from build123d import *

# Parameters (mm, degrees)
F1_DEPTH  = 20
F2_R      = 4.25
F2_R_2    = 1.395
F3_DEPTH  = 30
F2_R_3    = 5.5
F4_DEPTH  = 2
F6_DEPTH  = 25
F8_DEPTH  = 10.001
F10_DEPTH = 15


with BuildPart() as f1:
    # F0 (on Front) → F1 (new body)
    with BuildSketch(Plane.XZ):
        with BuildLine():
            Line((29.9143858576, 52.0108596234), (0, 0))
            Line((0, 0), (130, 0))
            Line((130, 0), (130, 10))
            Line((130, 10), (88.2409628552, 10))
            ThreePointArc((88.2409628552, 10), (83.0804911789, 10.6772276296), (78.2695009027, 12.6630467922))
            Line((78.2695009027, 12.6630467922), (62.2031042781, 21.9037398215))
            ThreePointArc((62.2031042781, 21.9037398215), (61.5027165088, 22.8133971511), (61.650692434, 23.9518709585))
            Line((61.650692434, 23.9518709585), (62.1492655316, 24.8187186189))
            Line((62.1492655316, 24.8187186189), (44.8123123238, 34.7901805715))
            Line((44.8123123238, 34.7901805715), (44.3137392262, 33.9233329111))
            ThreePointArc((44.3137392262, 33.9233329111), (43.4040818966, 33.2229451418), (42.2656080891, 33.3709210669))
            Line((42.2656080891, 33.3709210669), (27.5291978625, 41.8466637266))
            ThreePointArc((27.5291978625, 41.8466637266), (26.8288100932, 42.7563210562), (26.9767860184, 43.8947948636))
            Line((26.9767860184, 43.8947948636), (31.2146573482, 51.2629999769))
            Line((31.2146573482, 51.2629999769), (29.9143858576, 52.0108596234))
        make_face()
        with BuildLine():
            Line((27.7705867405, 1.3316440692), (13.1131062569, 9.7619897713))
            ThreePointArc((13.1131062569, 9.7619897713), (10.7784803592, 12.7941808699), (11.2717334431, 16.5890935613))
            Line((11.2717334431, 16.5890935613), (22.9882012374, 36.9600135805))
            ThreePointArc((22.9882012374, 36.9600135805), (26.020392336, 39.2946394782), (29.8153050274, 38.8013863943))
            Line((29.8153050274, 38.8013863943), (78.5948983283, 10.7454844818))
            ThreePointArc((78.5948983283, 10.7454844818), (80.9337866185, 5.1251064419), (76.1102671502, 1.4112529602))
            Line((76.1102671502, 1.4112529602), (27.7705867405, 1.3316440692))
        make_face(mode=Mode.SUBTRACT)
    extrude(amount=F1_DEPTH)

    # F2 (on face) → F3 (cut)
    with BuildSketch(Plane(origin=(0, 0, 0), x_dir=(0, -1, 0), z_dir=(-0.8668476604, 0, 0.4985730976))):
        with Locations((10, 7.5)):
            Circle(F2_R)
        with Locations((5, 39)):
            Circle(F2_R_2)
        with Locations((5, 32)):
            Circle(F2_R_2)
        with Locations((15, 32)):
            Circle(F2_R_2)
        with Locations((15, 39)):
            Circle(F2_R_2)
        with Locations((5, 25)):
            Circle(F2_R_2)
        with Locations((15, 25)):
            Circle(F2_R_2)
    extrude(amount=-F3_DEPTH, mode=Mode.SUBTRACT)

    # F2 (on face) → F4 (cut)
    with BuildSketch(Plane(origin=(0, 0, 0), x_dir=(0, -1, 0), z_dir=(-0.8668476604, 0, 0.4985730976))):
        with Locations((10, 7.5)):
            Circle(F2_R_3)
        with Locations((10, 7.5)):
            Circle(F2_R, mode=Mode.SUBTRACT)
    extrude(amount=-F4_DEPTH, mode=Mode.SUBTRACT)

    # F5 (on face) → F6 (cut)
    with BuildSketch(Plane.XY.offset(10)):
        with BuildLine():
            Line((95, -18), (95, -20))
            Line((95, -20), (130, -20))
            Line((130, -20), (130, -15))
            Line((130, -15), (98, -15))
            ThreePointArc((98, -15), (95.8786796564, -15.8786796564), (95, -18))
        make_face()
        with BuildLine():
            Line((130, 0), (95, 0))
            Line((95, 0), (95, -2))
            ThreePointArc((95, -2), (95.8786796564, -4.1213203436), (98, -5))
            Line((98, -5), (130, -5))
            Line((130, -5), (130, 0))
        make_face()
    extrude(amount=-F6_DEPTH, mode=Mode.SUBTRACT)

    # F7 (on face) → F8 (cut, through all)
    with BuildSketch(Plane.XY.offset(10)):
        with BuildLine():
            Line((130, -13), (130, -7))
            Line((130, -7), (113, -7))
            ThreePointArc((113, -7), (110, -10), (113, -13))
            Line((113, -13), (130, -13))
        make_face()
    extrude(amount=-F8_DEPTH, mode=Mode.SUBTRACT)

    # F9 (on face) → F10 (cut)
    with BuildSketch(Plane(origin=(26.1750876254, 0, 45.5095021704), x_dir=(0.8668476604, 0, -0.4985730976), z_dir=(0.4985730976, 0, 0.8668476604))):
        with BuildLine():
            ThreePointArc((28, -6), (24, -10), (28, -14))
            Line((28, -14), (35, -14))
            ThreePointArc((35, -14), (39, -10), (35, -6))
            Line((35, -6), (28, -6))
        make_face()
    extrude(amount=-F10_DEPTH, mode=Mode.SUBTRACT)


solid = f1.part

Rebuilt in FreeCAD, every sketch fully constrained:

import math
import FreeCAD as App
import Part
import Sketcher

doc = App.newDocument("Part")
body = doc.addObject("PartDesign::Body", "Body")

sketch1 = body.newObject("Sketcher::SketchObject", "Sketch")
sketch1.AttachmentSupport = (doc.getObject("XZ_Plane"), [""])
sketch1.MapMode = "FlatFace"
sketch1.addGeometry([
    Part.LineSegment(App.Vector(29.914386, 52.01086, 0), App.Vector(0, 0, 0)),
    Part.LineSegment(App.Vector(0, 0, 0), App.Vector(130, 0, 0)),
    Part.LineSegment(App.Vector(130, 0, 0), App.Vector(130, 10, 0)),
    Part.LineSegment(App.Vector(130, 10, 0), App.Vector(88.240963, 10, 0)),
    Part.ArcOfCircle(Part.Circle(App.Vector(88.240963, 30, 0), App.Vector(0, 0, 1), 20), math.radians(-119.905642), math.radians(-90)),
    Part.LineSegment(App.Vector(78.269501, 12.663047, 0), App.Vector(62.203104, 21.90374, 0)),
    Part.ArcOfCircle(Part.Circle(App.Vector(62.950964, 23.204011, 0), App.Vector(0, 0, 1), 1.5), math.radians(150.094358), math.radians(240.094358)),
    Part.LineSegment(App.Vector(61.650692, 23.951871, 0), App.Vector(62.149266, 24.818719, 0)),
    Part.LineSegment(App.Vector(62.149266, 24.818719, 0), App.Vector(44.812312, 34.790181, 0)),
    Part.LineSegment(App.Vector(44.812312, 34.790181, 0), App.Vector(44.313739, 33.923333, 0)),
    Part.ArcOfCircle(Part.Circle(App.Vector(43.013468, 34.671193, 0), App.Vector(0, 0, 1), 1.5), math.radians(-119.905642), math.radians(-29.905642)),
    Part.LineSegment(App.Vector(42.265608, 33.370921, 0), App.Vector(27.529198, 41.846664, 0)),
    Part.ArcOfCircle(Part.Circle(App.Vector(28.277058, 43.146935, 0), App.Vector(0, 0, 1), 1.5), math.radians(150.094358), math.radians(240.094358)),
    Part.LineSegment(App.Vector(26.976786, 43.894795, 0), App.Vector(31.214657, 51.263, 0)),
    Part.LineSegment(App.Vector(31.214657, 51.263, 0), App.Vector(29.914386, 52.01086, 0)),
    Part.LineSegment(App.Vector(76.110267, 1.411253, 0), App.Vector(27.770587, 1.331644, 0)),
    Part.LineSegment(App.Vector(27.770587, 1.331644, 0), App.Vector(13.113106, 9.76199, 0)),
    Part.ArcOfCircle(Part.Circle(App.Vector(15.605972, 14.096228, 0), App.Vector(0, 0, 1), 5), math.radians(150.094358), math.radians(240.094358)),
    Part.LineSegment(App.Vector(11.271733, 16.589094, 0), App.Vector(22.988201, 36.960014, 0)),
    Part.ArcOfCircle(Part.Circle(App.Vector(27.32244, 34.467148, 0), App.Vector(0, 0, 1), 5), math.radians(60.094358), math.radians(150.094358)),
    Part.LineSegment(App.Vector(29.815305, 38.801386, 0), App.Vector(78.594898, 10.745484, 0)),
    Part.ArcOfCircle(Part.Circle(App.Vector(76.102033, 6.411246, 0), App.Vector(0, 0, 1), 5), math.radians(-89.905642), math.radians(60.094358)),
], False)
sketch1.addConstraint([
    Sketcher.Constraint("Coincident", 0, 2, 1, 1),
    Sketcher.Constraint("Coincident", 1, 2, 2, 1),
    Sketcher.Constraint("Coincident", 2, 2, 3, 1),
    Sketcher.Constraint("Tangent", 3, 2, 4, 2),
    Sketcher.Constraint("Tangent", 4, 1, 5, 1),
    Sketcher.Constraint("Tangent", 5, 2, 6, 2),
    Sketcher.Constraint("Tangent", 6, 1, 7, 1),
    Sketcher.Constraint("Coincident", 7, 2, 8, 1),
    Sketcher.Constraint("Coincident", 8, 2, 9, 1),
    Sketcher.Constraint("Tangent", 9, 2, 10, 2),
    Sketcher.Constraint("Tangent", 10, 1, 11, 1),
    Sketcher.Constraint("Tangent", 11, 2, 12, 2),
    Sketcher.Constraint("Tangent", 12, 1, 13, 1),
    Sketcher.Constraint("Coincident", 13, 2, 14, 1),
    Sketcher.Constraint("Coincident", 14, 2, 0, 1),
    Sketcher.Constraint("Coincident", 15, 2, 16, 1),
    Sketcher.Constraint("Tangent", 16, 2, 17, 2),
    Sketcher.Constraint("Tangent", 17, 1, 18, 1),
    Sketcher.Constraint("Tangent", 18, 2, 19, 2),
    Sketcher.Constraint("Tangent", 19, 1, 20, 1),
    Sketcher.Constraint("Tangent", 20, 2, 21, 2),
    Sketcher.Constraint("Tangent", 21, 1, 15, 1),
    Sketcher.Constraint("Horizontal", 1),
    Sketcher.Constraint("Vertical", 2),
    Sketcher.Constraint("Horizontal", 3),
    Sketcher.Constraint("Coincident", 0, 2, -1, 1),
    Sketcher.Constraint("Equal", 6, 10),
    Sketcher.Constraint("Equal", 10, 12),
    Sketcher.Constraint("Equal", 17, 19),
    Sketcher.Constraint("Equal", 19, 21),
    Sketcher.Constraint("Perpendicular", 0, 5),
    Sketcher.Constraint("Perpendicular", 5, 7),
    Sketcher.Constraint("Perpendicular", 7, 8),
    Sketcher.Constraint("Perpendicular", 8, 9),
    Sketcher.Constraint("Perpendicular", 9, 11),
    Sketcher.Constraint("Perpendicular", 11, 13),
    Sketcher.Constraint("Perpendicular", 13, 14),
    Sketcher.Constraint("Parallel", 14, 16),
    Sketcher.Constraint("Perpendicular", 16, 18),
    Sketcher.Constraint("Perpendicular", 18, 20),
    Sketcher.Constraint("Equal", 7, 9),
    Sketcher.Constraint("Radius", 4, 20.0),
    Sketcher.Constraint("Radius", 17, 5.0),
    Sketcher.Constraint("Radius", 6, 1.5),
    Sketcher.Constraint("DistanceX", 1, 1, 1, 2, 130.0),
    Sketcher.Constraint("DistanceY", 2, 1, 2, 2, 10.0),
    Sketcher.Constraint("Distance", 0, 60.0),
    Sketcher.Constraint("Distance", 7, 1.0),
    Sketcher.Constraint("Distance", 8, 20.0),
    Sketcher.Constraint("Distance", 11, 17.0),
    Sketcher.Constraint("Distance", 13, 8.5),
    Sketcher.Constraint("Distance", 14, 1.5),
    Sketcher.Constraint("Distance", 18, 23.5),
    Sketcher.Constraint("DistanceX", 6, 3, 4, 3, 25.289999),
    Sketcher.Constraint("DistanceX", -1, 1, 18, 2, 22.988201),
    Sketcher.Constraint("DistanceX", -1, 1, 20, 2, 78.594898),
    Sketcher.Constraint("DistanceY", 21, 3, 4, 1, 6.251801),
    Sketcher.Constraint("DistanceX", 15, 2, 10, 1, 14.495021),
])
pad1 = body.newObject("PartDesign::Pad", "Pad")
pad1.Profile = sketch1
pad1.Length = 20

sketch2 = body.newObject("Sketcher::SketchObject", "Sketch001")
sketch2.Placement = App.Placement(App.Vector(0, 0, 0), App.Rotation(App.Vector(0, -1, 0), App.Vector(0.498573098, 0, 0.86684766), App.Vector(-0.86684766, 0, 0.498573098), "ZXY"))
sketch2.addGeometry([
    Part.Circle(App.Vector(10, 7.5, 0), App.Vector(0, 0, 1), 4.25),
    Part.Circle(App.Vector(5, 39, 0), App.Vector(0, 0, 1), 1.395),
    Part.Circle(App.Vector(5, 32, 0), App.Vector(0, 0, 1), 1.395),
    Part.Circle(App.Vector(15, 32, 0), App.Vector(0, 0, 1), 1.395),
    Part.Circle(App.Vector(15, 39, 0), App.Vector(0, 0, 1), 1.395),
    Part.Circle(App.Vector(5, 25, 0), App.Vector(0, 0, 1), 1.395),
    Part.Circle(App.Vector(15, 25, 0), App.Vector(0, 0, 1), 1.395),
], False)
sketch2.addConstraint([
    Sketcher.Constraint("Equal", 1, 2),
    Sketcher.Constraint("Equal", 2, 3),
    Sketcher.Constraint("Equal", 3, 4),
    Sketcher.Constraint("Equal", 4, 5),
    Sketcher.Constraint("Equal", 5, 6),
    Sketcher.Constraint("Horizontal", 2, 3, 3, 3),
    Sketcher.Constraint("Horizontal", 1, 3, 4, 3),
    Sketcher.Constraint("Horizontal", 5, 3, 6, 3),
    Sketcher.Constraint("Vertical", 1, 3, 2, 3),
    Sketcher.Constraint("Vertical", 3, 3, 4, 3),
    Sketcher.Constraint("Vertical", 2, 3, 5, 3),
    Sketcher.Constraint("Vertical", 4, 3, 6, 3),
    Sketcher.Constraint("Diameter", 0, 8.5),
    Sketcher.Constraint("Diameter", 1, 2.79),
    Sketcher.Constraint("DistanceX", -1, 1, 0, 3, 10.0),
    Sketcher.Constraint("DistanceX", -1, 1, 1, 3, 5.0),
    Sketcher.Constraint("DistanceY", -1, 1, 1, 3, 39.0),
    Sketcher.Constraint("DistanceY", -1, 1, 2, 3, 32.0),
    Sketcher.Constraint("DistanceX", -1, 1, 3, 3, 15.0),
    Sketcher.Constraint("DistanceY", -1, 1, 5, 3, 25.0),
    Sketcher.Constraint("DistanceY", -1, 1, 0, 3, 7.5),
])
pocket1 = body.newObject("PartDesign::Pocket", "Pocket")
pocket1.Profile = sketch2
pocket1.Length = 30

sketch3 = body.newObject("Sketcher::SketchObject", "Sketch002")
sketch3.Placement = App.Placement(App.Vector(0, 0, 0), App.Rotation(App.Vector(0, -1, 0), App.Vector(0.498573098, 0, 0.86684766), App.Vector(-0.86684766, 0, 0.498573098), "ZXY"))
sketch3.addGeometry([
    Part.Circle(App.Vector(10, 7.5, 0), App.Vector(0, 0, 1), 5.5),
    Part.Circle(App.Vector(10, 7.5, 0), App.Vector(0, 0, 1), 4.25),
], False)
sketch3.addConstraint([
    Sketcher.Constraint("Coincident", 1, 3, 0, 3),
    Sketcher.Constraint("Diameter", 0, 11.0),
    Sketcher.Constraint("Diameter", 1, 8.5),
    Sketcher.Constraint("DistanceX", -1, 1, 0, 3, 10.0),
    Sketcher.Constraint("DistanceY", -1, 1, 0, 3, 7.5),
])
pocket2 = body.newObject("PartDesign::Pocket", "Pocket001")
pocket2.Profile = sketch3
pocket2.Length = 2

sketch4 = body.newObject("Sketcher::SketchObject", "Sketch003")
sketch4.AttachmentSupport = (doc.getObject("XY_Plane"), [""])
sketch4.MapMode = "FlatFace"
sketch4.AttachmentOffset = App.Placement(App.Vector(0, 0, 10), App.Rotation())
sketch4.addGeometry([
    Part.LineSegment(App.Vector(95, -18, 0), App.Vector(95, -20, 0)),
    Part.LineSegment(App.Vector(95, -20, 0), App.Vector(130, -20, 0)),
    Part.LineSegment(App.Vector(130, -20, 0), App.Vector(130, -15, 0)),
    Part.LineSegment(App.Vector(130, -15, 0), App.Vector(98, -15, 0)),
    Part.ArcOfCircle(Part.Circle(App.Vector(98, -18, 0), App.Vector(0, 0, 1), 3), math.radians(90), math.radians(180)),
    Part.LineSegment(App.Vector(130, 0, 0), App.Vector(95, 0, 0)),
    Part.LineSegment(App.Vector(95, 0, 0), App.Vector(95, -2, 0)),
    Part.ArcOfCircle(Part.Circle(App.Vector(98, -2, 0), App.Vector(0, 0, 1), 3), math.radians(180), math.radians(270)),
    Part.LineSegment(App.Vector(98, -5, 0), App.Vector(130, -5, 0)),
    Part.LineSegment(App.Vector(130, -5, 0), App.Vector(130, 0, 0)),
], False)
sketch4.addConstraint([
    Sketcher.Constraint("Coincident", 0, 2, 1, 1),
    Sketcher.Constraint("Coincident", 1, 2, 2, 1),
    Sketcher.Constraint("Coincident", 2, 2, 3, 1),
    Sketcher.Constraint("Tangent", 3, 2, 4, 1),
    Sketcher.Constraint("Tangent", 4, 2, 0, 1),
    Sketcher.Constraint("Coincident", 5, 2, 6, 1),
    Sketcher.Constraint("Tangent", 6, 2, 7, 1),
    Sketcher.Constraint("Tangent", 7, 2, 8, 1),
    Sketcher.Constraint("Coincident", 8, 2, 9, 1),
    Sketcher.Constraint("Coincident", 9, 2, 5, 1),
    Sketcher.Constraint("Vertical", 0),
    Sketcher.Constraint("Horizontal", 1),
    Sketcher.Constraint("Vertical", 2),
    Sketcher.Constraint("Horizontal", 3),
    Sketcher.Constraint("Horizontal", 5),
    Sketcher.Constraint("Vertical", 6),
    Sketcher.Constraint("Horizontal", 8),
    Sketcher.Constraint("Vertical", 9),
    Sketcher.Constraint("Equal", 4, 7),
    Sketcher.Constraint("PointOnObject", 5, 2, -1),
    Sketcher.Constraint("Vertical", 4, 3, 7, 3),
    Sketcher.Constraint("Vertical", 2, 2, 8, 2),
    Sketcher.Constraint("Equal", 0, 6),
    Sketcher.Constraint("Radius", 4, 3.0),
    Sketcher.Constraint("DistanceX", 1, 1, 1, 2, 35.0),
    Sketcher.Constraint("DistanceY", 0, 2, 0, 1, 2.0),
    Sketcher.Constraint("DistanceX", -1, 1, 4, 3, 98.0),
    Sketcher.Constraint("DistanceY", 4, 3, -1, 1, 18.0),
])
pocket3 = body.newObject("PartDesign::Pocket", "Pocket002")
pocket3.Profile = sketch4
pocket3.Length = 25

sketch5 = body.newObject("Sketcher::SketchObject", "Sketch004")
sketch5.AttachmentSupport = (doc.getObject("XY_Plane"), [""])
sketch5.MapMode = "FlatFace"
sketch5.AttachmentOffset = App.Placement(App.Vector(0, 0, 10), App.Rotation())
sketch5.addGeometry([
    Part.LineSegment(App.Vector(130, -13, 0), App.Vector(130, -7, 0)),
    Part.LineSegment(App.Vector(130, -7, 0), App.Vector(113, -7, 0)),
    Part.ArcOfCircle(Part.Circle(App.Vector(113, -10, 0), App.Vector(0, 0, 1), 3), math.radians(90), math.radians(270)),
    Part.LineSegment(App.Vector(113, -13, 0), App.Vector(130, -13, 0)),
], False)
sketch5.addConstraint([
    Sketcher.Constraint("Coincident", 0, 2, 1, 1),
    Sketcher.Constraint("Tangent", 1, 2, 2, 1),
    Sketcher.Constraint("Tangent", 2, 2, 3, 1),
    Sketcher.Constraint("Coincident", 3, 2, 0, 1),
    Sketcher.Constraint("Vertical", 0),
    Sketcher.Constraint("Horizontal", 1),
    Sketcher.Constraint("Horizontal", 3),
    Sketcher.Constraint("Radius", 2, 3.0),
    Sketcher.Constraint("DistanceX", 1, 2, 1, 1, 17.0),
    Sketcher.Constraint("DistanceX", -1, 1, 2, 3, 113.0),
    Sketcher.Constraint("DistanceY", 2, 3, -1, 1, 10.0),
])
pocket4 = body.newObject("PartDesign::Pocket", "Pocket003")
pocket4.Profile = sketch5
pocket4.Type = "ThroughAll"

sketch6 = body.newObject("Sketcher::SketchObject", "Sketch005")
sketch6.Placement = App.Placement(App.Vector(26.175088, 0, 45.509502), App.Rotation(App.Vector(0.86684766, 0, -0.498573098), App.Vector(0, 1, 0), App.Vector(0.498573098, 0, 0.86684766), "ZXY"))
sketch6.addGeometry([
    Part.ArcOfCircle(Part.Circle(App.Vector(28, -10, 0), App.Vector(0, 0, 1), 4), math.radians(90), math.radians(270)),
    Part.LineSegment(App.Vector(28, -14, 0), App.Vector(35, -14, 0)),
    Part.ArcOfCircle(Part.Circle(App.Vector(35, -10, 0), App.Vector(0, 0, 1), 4), math.radians(-90), math.radians(90)),
    Part.LineSegment(App.Vector(35, -6, 0), App.Vector(28, -6, 0)),
], False)
sketch6.addConstraint([
    Sketcher.Constraint("Tangent", 0, 2, 1, 1),
    Sketcher.Constraint("Tangent", 1, 2, 2, 1),
    Sketcher.Constraint("Tangent", 2, 2, 3, 1),
    Sketcher.Constraint("Tangent", 3, 2, 0, 1),
    Sketcher.Constraint("Horizontal", 1),
    Sketcher.Constraint("Horizontal", 3),
    Sketcher.Constraint("Radius", 0, 4.0),
    Sketcher.Constraint("DistanceX", 1, 1, 1, 2, 7.0),
    Sketcher.Constraint("DistanceX", -1, 1, 0, 3, 28.0),
    Sketcher.Constraint("DistanceY", 0, 3, -1, 1, 10.0),
])
pocket5 = body.newObject("PartDesign::Pocket", "Pocket004")
pocket5.Profile = sketch6
pocket5.Length = 15

doc.recompute()
